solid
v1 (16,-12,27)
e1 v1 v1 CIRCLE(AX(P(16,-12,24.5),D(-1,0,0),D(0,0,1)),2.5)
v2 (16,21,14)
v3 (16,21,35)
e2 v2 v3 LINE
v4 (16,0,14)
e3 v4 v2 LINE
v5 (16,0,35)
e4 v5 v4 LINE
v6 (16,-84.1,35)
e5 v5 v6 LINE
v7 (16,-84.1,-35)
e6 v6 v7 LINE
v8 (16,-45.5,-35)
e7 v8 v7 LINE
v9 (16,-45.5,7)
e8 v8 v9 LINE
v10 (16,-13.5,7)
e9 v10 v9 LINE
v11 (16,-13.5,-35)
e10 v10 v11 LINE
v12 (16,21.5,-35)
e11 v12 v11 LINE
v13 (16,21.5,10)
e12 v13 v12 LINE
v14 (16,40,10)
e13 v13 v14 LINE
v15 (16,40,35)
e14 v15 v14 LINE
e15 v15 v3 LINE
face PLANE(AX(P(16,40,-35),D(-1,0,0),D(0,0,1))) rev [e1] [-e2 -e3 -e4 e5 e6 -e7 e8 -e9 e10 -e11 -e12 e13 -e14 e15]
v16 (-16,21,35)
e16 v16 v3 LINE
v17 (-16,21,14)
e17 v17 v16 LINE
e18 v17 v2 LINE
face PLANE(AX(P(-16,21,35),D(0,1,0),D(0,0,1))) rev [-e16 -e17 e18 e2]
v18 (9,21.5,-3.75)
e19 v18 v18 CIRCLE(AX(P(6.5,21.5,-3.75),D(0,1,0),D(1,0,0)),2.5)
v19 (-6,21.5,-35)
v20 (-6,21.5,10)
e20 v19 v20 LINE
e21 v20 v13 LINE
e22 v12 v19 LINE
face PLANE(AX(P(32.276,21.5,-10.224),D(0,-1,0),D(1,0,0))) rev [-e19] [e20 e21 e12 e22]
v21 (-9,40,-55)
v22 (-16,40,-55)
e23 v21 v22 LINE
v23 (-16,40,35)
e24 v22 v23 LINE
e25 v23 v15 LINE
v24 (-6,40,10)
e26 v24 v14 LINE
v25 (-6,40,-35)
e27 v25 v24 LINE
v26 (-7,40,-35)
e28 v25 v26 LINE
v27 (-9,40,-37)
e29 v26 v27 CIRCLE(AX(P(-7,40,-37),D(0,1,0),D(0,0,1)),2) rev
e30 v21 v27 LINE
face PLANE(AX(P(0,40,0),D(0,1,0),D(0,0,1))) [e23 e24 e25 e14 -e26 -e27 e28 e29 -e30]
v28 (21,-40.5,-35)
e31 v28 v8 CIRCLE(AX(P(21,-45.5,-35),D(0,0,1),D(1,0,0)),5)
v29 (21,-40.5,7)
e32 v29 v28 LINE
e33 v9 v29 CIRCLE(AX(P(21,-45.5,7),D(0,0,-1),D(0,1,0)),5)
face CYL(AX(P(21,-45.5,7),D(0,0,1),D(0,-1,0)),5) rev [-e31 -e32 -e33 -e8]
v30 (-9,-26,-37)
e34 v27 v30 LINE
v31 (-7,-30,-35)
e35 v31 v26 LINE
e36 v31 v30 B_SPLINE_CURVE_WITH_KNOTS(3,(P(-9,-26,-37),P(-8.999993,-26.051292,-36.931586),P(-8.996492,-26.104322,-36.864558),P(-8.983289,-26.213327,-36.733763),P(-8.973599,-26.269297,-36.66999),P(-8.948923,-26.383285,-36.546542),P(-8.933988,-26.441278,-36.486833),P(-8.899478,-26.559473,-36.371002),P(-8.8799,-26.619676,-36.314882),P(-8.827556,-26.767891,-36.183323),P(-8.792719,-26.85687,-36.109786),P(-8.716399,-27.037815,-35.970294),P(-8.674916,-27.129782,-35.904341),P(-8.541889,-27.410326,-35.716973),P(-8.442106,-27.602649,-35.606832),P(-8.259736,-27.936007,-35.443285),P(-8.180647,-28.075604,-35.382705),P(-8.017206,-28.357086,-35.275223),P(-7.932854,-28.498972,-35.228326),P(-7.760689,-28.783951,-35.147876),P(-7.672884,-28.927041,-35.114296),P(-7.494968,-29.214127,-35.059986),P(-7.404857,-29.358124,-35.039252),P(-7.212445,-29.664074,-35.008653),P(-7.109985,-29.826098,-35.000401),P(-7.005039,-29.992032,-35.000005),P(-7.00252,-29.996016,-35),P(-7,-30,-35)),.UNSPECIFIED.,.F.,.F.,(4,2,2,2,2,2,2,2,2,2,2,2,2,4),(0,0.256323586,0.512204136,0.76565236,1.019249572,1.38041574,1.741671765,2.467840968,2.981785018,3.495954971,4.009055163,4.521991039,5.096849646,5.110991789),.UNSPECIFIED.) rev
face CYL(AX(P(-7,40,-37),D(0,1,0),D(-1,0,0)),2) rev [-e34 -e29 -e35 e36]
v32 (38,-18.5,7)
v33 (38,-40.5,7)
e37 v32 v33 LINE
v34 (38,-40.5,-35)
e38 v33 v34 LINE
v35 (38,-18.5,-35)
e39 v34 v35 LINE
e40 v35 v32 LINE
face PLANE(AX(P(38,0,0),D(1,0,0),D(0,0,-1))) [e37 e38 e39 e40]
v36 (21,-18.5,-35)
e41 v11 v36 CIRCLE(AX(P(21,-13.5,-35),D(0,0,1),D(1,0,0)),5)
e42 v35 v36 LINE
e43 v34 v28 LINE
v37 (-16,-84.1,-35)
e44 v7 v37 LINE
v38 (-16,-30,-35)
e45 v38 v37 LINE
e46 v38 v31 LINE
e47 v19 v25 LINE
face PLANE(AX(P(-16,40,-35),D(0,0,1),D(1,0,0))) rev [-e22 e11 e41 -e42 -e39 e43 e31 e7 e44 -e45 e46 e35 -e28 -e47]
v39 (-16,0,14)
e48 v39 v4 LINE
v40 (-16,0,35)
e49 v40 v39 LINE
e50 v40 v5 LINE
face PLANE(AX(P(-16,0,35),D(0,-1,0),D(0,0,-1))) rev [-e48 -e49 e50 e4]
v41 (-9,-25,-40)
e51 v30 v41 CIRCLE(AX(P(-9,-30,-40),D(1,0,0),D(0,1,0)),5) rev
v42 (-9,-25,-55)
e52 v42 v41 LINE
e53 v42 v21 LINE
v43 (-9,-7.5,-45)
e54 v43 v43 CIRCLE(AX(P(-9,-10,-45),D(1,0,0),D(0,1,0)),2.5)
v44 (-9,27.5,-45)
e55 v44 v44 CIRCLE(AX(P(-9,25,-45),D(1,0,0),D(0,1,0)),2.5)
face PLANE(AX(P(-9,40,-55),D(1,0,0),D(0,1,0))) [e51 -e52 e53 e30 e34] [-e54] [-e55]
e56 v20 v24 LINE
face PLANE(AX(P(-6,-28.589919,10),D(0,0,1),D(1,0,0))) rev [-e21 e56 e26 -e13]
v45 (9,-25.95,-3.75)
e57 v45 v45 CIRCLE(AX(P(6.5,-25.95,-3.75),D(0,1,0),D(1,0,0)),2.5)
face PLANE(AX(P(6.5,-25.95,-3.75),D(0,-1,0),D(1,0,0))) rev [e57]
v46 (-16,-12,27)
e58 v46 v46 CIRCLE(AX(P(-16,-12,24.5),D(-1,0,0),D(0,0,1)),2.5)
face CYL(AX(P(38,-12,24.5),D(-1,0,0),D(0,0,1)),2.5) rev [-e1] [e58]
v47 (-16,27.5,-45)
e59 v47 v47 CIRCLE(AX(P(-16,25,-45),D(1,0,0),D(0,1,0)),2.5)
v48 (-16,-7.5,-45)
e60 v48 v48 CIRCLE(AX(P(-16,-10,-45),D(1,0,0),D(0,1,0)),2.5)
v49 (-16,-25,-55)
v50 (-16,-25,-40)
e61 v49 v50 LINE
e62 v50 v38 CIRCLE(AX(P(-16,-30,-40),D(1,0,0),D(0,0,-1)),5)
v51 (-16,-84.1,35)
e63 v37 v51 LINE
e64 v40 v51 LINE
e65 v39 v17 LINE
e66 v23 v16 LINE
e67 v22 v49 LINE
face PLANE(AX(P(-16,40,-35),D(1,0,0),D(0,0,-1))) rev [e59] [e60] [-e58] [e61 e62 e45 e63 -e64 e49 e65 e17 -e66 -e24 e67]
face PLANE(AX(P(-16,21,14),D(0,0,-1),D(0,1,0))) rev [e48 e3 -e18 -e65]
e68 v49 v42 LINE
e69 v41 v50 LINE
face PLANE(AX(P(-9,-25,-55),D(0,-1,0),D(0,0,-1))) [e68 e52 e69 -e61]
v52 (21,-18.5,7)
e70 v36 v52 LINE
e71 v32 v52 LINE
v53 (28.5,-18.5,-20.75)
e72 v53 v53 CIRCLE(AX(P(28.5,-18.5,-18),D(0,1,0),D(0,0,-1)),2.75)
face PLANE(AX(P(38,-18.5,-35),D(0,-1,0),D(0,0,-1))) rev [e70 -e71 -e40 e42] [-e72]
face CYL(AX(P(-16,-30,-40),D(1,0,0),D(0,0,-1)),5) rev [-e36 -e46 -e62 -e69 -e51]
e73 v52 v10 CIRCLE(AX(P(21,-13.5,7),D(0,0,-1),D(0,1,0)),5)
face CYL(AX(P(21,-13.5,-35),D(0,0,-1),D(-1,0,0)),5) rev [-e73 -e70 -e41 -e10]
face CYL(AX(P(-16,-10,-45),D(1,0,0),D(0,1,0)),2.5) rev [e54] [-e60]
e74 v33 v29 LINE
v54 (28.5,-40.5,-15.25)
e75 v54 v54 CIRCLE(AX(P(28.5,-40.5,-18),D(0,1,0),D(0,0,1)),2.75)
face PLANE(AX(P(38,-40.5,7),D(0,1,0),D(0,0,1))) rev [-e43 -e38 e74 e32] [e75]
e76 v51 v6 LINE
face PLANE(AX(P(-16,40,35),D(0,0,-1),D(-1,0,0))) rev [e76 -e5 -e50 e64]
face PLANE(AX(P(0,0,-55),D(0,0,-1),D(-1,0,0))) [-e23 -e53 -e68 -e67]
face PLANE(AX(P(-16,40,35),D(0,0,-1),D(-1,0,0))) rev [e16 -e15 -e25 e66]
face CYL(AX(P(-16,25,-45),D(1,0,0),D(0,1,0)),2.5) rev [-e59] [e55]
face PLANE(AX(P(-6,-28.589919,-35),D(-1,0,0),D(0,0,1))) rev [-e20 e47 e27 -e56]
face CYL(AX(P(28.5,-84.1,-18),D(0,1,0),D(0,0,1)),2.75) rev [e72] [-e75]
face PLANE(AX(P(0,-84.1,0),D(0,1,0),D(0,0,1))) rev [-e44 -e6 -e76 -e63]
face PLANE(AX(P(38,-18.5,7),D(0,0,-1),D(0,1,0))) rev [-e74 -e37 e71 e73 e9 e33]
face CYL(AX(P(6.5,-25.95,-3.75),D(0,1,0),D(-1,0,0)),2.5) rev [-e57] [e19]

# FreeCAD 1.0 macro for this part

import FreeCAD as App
import Part
import Sketcher
Q = App.Units.Quantity


def edges_at(feature, points):
    """Names of the edges that pass closest to the given points."""
    edges = feature.Shape.Edges
    near = lambda p: min(range(len(edges)), key=lambda i: edges[i].distToShape(Part.Vertex(*p))[0])
    return sorted({f"Edge{near(p) + 1}" for p in points})


def add_polygon(sketch, points):
    """Adds a closed chain of lines whose ends are joined by coincident constraints."""
    first, n = sketch.GeometryCount, len(points)
    for a, b in zip(points, points[1:] + points[:1]):
        sketch.addGeometry(Part.LineSegment(App.Vector(*a, 0), App.Vector(*b, 0)), False)
    for i in range(n):
        sketch.addConstraint(Sketcher.Constraint("Coincident", first + i, 2, first + (i + 1) % n, 1))

doc = App.newDocument("Part")
params = doc.addObject("Spreadsheet::Sheet", "Params")
for row, (alias, value) in enumerate([
    ("sketch1_width", "32 mm"),
    ("sketch1_height", "70 mm"),
    ("pad1_length", "40 mm"),
    ("pad1_length2", "84.1 mm"),
    ("sketch2_width", "21 mm"),
    ("sketch3_width", "22 mm"),
    ("sketch3_height", "45 mm"),
    ("pocket2_length", "18.5 mm"),
    ("sketch4_width", "22 mm"),
    ("sketch4_height", "42 mm"),
    ("pad2_length", "22 mm"),
    ("sketch5_diameter", "5.5 mm"),
    ("sketch6_width", "7 mm"),
    ("sketch6_height", "65 mm"),
    ("pad3_length", "20 mm"),
    ("sketch7_diameter", "5 mm"),
    ("sketch8_diameter", "5 mm"),
    ("fillet_radius", "2 mm"),
    ("fillet2_radius", "5 mm"),
    ("sketch9_diameter", "5 mm"),
    ("pocket6_length", "47.45 mm"),
], start=1):
    params.set(f"A{row}", alias)
    params.set(f"B{row}", "=" + value)
    params.setAlias(f"B{row}", alias)

body = doc.addObject("PartDesign::Body", "Body")

sketch1 = body.newObject("Sketcher::SketchObject", "Sketch")
sketch1.AttachmentSupport = (doc.getObject("XZ_Plane"), [""])
sketch1.MapMode = "FlatFace"
add_polygon(sketch1, [(-16, -35), (-16, 35), (16, 35), (16, -35)])
sketch1.addConstraint([
    Sketcher.Constraint("Vertical", 0),
    Sketcher.Constraint("Horizontal", 1),
    Sketcher.Constraint("Vertical", 2),
    Sketcher.Constraint("Horizontal", 3),
    Sketcher.Constraint("Symmetric", 0, 2, 2, 2, -1, 1),
    Sketcher.Constraint("DistanceX", 1, 1, 1, 2, Q("32 mm")),
    Sketcher.Constraint("DistanceY", 0, 1, 0, 2, Q("70 mm")),
])
sketch1.setExpression("Constraints[9]", "Params.sketch1_width")
sketch1.setExpression("Constraints[10]", "Params.sketch1_height")
pad1 = body.newObject("PartDesign::Pad", "Pad")
pad1.Profile = sketch1
pad1.Type = "TwoLengths"
pad1.setExpression("Length", "Params.pad1_length")
pad1.setExpression("Length2", "Params.pad1_length2")
pad1.Reversed = True

sketch2 = body.newObject("Sketcher::SketchObject", "Sketch001")
sketch2.AttachmentSupport = (doc.getObject("YZ_Plane"), [""])
sketch2.MapMode = "FlatFace"
add_polygon(sketch2, [(21, 35), (0, 35), (0, 14), (21, 14)])
sketch2.addConstraint([
    Sketcher.Constraint("Horizontal", 0),
    Sketcher.Constraint("Vertical", 1),
    Sketcher.Constraint("Horizontal", 2),
    Sketcher.Constraint("Vertical", 3),
    Sketcher.Constraint("PointOnObject", 0, 2, -2),
    Sketcher.Constraint("Equal", 2, 1),
    Sketcher.Constraint("DistanceX", 0, 2, 0, 1, Q("21 mm")),
    Sketcher.Constraint("DistanceY", -1, 1, 0, 2, Q("35 mm")),
])
sketch2.setExpression("Constraints[10]", "Params.sketch2_width")
pocket1 = body.newObject("PartDesign::Pocket", "Pocket")
pocket1.Profile = sketch2
pocket1.Type = "ThroughAll"
pocket1.Midplane = True

sketch3 = body.newObject("Sketcher::SketchObject", "Sketch002")
sketch3.AttachmentSupport = (doc.getObject("XZ_Plane"), [""])
sketch3.MapMode = "FlatFace"
sketch3.AttachmentOffset = App.Placement(App.Vector(0, 0, -21.5), App.Rotation())
add_polygon(sketch3, [(-6, -35), (-6, 10), (16, 10), (16, -35)])
sketch3.addConstraint([
    Sketcher.Constraint("Vertical", 0),
    Sketcher.Constraint("Horizontal", 1),
    Sketcher.Constraint("Vertical", 2),
    Sketcher.Constraint("Horizontal", 3),
    Sketcher.Constraint("DistanceX", 1, 1, 1, 2, Q("22 mm")),
    Sketcher.Constraint("DistanceY", 0, 1, 0, 2, Q("45 mm")),
    Sketcher.Constraint("DistanceX", 0, 2, -1, 1, Q("6 mm")),
    Sketcher.Constraint("DistanceY", -1, 1, 0, 2, Q("10 mm")),
])
sketch3.setExpression("Constraints[8]", "Params.sketch3_width")
sketch3.setExpression("Constraints[9]", "Params.sketch3_height")
pocket2 = body.newObject("PartDesign::Pocket", "Pocket001")
pocket2.Profile = sketch3
pocket2.setExpression("Length", "Params.pocket2_length")

sketch4 = body.newObject("Sketcher::SketchObject", "Sketch003")
sketch4.AttachmentSupport = (doc.getObject("YZ_Plane"), [""])
sketch4.MapMode = "FlatFace"
sketch4.AttachmentOffset = App.Placement(App.Vector(0, 0, 16), App.Rotation())
add_polygon(sketch4, [(-18, 7), (-40, 7), (-40, -35), (-18, -35)])
sketch4.addConstraint([
    Sketcher.Constraint("Horizontal", 0),
    Sketcher.Constraint("Vertical", 1),
    Sketcher.Constraint("Horizontal", 2),
    Sketcher.Constraint("Vertical", 3),
    Sketcher.Constraint("DistanceX", 0, 2, 0, 1, Q("22 mm")),
    Sketcher.Constraint("DistanceY", 1, 2, 1, 1, Q("42 mm")),
    Sketcher.Constraint("DistanceY", -1, 1, 0, 2, Q("7 mm")),
    Sketcher.Constraint("DistanceX", 0, 2, -1, 1, Q("40.5 mm")),
])
sketch4.setExpression("Constraints[8]", "Params.sketch4_width")
sketch4.setExpression("Constraints[9]", "Params.sketch4_height")
pad2 = body.newObject("PartDesign::Pad", "Pad001")
pad2.Profile = sketch4
pad2.setExpression("Length", "Params.pad2_length")

sketch5 = body.newObject("Sketcher::SketchObject", "Sketch004")
sketch5.AttachmentSupport = (doc.getObject("XZ_Plane"), [""])
sketch5.MapMode = "FlatFace"
sketch5.AttachmentOffset = App.Placement(App.Vector(0, 0, 18.5), App.Rotation())
sketch5.addGeometry(Part.Circle(App.Vector(28.5, -18, 0), App.Vector(0, 0, 1), 2.8), False)
sketch5.addConstraint([
    Sketcher.Constraint("Diameter", 0, Q("5.5 mm")),
    Sketcher.Constraint("DistanceY", 0, 3, -1, 1, Q("18 mm")),
    Sketcher.Constraint("DistanceX", -1, 1, 0, 3, Q("28.5 mm")),
])
sketch5.setExpression("Constraints[0]", "Params.sketch5_diameter")
pocket3 = body.newObject("PartDesign::Pocket", "Pocket002")
pocket3.Profile = sketch5
pocket3.Type = "ThroughAll"
pocket3.Reversed = True

sketch6 = body.newObject("Sketcher::SketchObject", "Sketch005")
sketch6.AttachmentSupport = (doc.getObject("XY_Plane"), [""])
sketch6.MapMode = "FlatFace"
sketch6.AttachmentOffset = App.Placement(App.Vector(0, 0, -35), App.Rotation())
add_polygon(sketch6, [(-16, 40), (-16, -25), (-9, -25), (-9, 40)])
sketch6.addConstraint([
    Sketcher.Constraint("Vertical", 0),
    Sketcher.Constraint("Horizontal", 1),
    Sketcher.Constraint("Vertical", 2),
    Sketcher.Constraint("Horizontal", 3),
    Sketcher.Constraint("DistanceX", 1, 1, 1, 2, Q("7 mm")),
    Sketcher.Constraint("DistanceY", 0, 2, 0, 1, Q("65 mm")),
    Sketcher.Constraint("DistanceX", 0, 2, -1, 1, Q("16 mm")),
    Sketcher.Constraint("DistanceY", 0, 2, -1, 1, Q("25 mm")),
])
sketch6.setExpression("Constraints[8]", "Params.sketch6_width")
sketch6.setExpression("Constraints[9]", "Params.sketch6_height")
pad3 = body.newObject("PartDesign::Pad", "Pad002")
pad3.Profile = sketch6
pad3.setExpression("Length", "Params.pad3_length")
pad3.Reversed = True

sketch7 = body.newObject("Sketcher::SketchObject", "Sketch006")
sketch7.AttachmentSupport = (doc.getObject("YZ_Plane"), [""])
sketch7.MapMode = "FlatFace"
sketch7.addGeometry(Part.Circle(App.Vector(-12, 24.5, 0), App.Vector(0, 0, 1), 2.5), False)
sketch7.addConstraint([
    Sketcher.Constraint("Diameter", 0, Q("5 mm")),
    Sketcher.Constraint("DistanceX", 0, 3, -1, 1, Q("12 mm")),
    Sketcher.Constraint("DistanceY", -1, 1, 0, 3, Q("24.5 mm")),
])
sketch7.setExpression("Constraints[0]", "Params.sketch7_diameter")
pocket4 = body.newObject("PartDesign::Pocket", "Pocket003")
pocket4.Profile = sketch7
pocket4.Type = "ThroughAll"
pocket4.Midplane = True

sketch8 = body.newObject("Sketcher::SketchObject", "Sketch007")
sketch8.AttachmentSupport = (doc.getObject("YZ_Plane"), [""])
sketch8.MapMode = "FlatFace"
sketch8.AttachmentOffset = App.Placement(App.Vector(0, 0, -9), App.Rotation())
sketch8.addGeometry([
    Part.Circle(App.Vector(25, -45, 0), App.Vector(0, 0, 1), 2.5),
    Part.Circle(App.Vector(-10, -45, 0), App.Vector(0, 0, 1), 2.5),
], False)
sketch8.addConstraint([
    Sketcher.Constraint("Equal", 0, 1),
    Sketcher.Constraint("Horizontal", 0, 3, 1, 3),
    Sketcher.Constraint("Diameter", 0, Q("5 mm")),
    Sketcher.Constraint("DistanceX", -1, 1, 0, 3, Q("25 mm")),
    Sketcher.Constraint("DistanceY", 0, 3, -1, 1, Q("45 mm")),
    Sketcher.Constraint("DistanceX", 1, 3, -1, 1, Q("10 mm")),
])
sketch8.setExpression("Constraints[2]", "Params.sketch8_diameter")
pocket5 = body.newObject("PartDesign::Pocket", "Pocket004")
pocket5.Profile = sketch8
pocket5.Type = "ThroughAll"
doc.recompute()

fillet = body.newObject("PartDesign::Fillet", "Fillet")
fillet.Base = (pocket5, edges_at(pocket5, [(-9, 7.5, -35)]))
fillet.setExpression("Radius", "Params.fillet_radius")
doc.recompute()

fillet2 = body.newObject("PartDesign::Fillet", "Fillet001")
fillet2.Base = (fillet, edges_at(fillet, [(16, -18.5, -14), (16, -40.5, -14), (-11.5, -25, -35)]))
fillet2.setExpression("Radius", "Params.fillet2_radius")

sketch9 = body.newObject("Sketcher::SketchObject", "Sketch008")
sketch9.AttachmentSupport = (doc.getObject("XZ_Plane"), [""])
sketch9.MapMode = "FlatFace"
sketch9.AttachmentOffset = App.Placement(App.Vector(0, 0, -21.5), App.Rotation())
sketch9.addGeometry(Part.Circle(App.Vector(6.5, -3.8, 0), App.Vector(0, 0, 1), 2.5), False)
sketch9.addConstraint([
    Sketcher.Constraint("Diameter", 0, Q("5 mm")),
    Sketcher.Constraint("DistanceX", -1, 1, 0, 3, Q("6.5 mm")),
    Sketcher.Constraint("DistanceY", 0, 3, -1, 1, Q("3.75 mm")),
])
sketch9.setExpression("Constraints[0]", "Params.sketch9_diameter")
pocket6 = body.newObject("PartDesign::Pocket", "Pocket005")
pocket6.Profile = sketch9
pocket6.setExpression("Length", "Params.pocket6_length")
pocket6.Reversed = True

doc.recompute()
